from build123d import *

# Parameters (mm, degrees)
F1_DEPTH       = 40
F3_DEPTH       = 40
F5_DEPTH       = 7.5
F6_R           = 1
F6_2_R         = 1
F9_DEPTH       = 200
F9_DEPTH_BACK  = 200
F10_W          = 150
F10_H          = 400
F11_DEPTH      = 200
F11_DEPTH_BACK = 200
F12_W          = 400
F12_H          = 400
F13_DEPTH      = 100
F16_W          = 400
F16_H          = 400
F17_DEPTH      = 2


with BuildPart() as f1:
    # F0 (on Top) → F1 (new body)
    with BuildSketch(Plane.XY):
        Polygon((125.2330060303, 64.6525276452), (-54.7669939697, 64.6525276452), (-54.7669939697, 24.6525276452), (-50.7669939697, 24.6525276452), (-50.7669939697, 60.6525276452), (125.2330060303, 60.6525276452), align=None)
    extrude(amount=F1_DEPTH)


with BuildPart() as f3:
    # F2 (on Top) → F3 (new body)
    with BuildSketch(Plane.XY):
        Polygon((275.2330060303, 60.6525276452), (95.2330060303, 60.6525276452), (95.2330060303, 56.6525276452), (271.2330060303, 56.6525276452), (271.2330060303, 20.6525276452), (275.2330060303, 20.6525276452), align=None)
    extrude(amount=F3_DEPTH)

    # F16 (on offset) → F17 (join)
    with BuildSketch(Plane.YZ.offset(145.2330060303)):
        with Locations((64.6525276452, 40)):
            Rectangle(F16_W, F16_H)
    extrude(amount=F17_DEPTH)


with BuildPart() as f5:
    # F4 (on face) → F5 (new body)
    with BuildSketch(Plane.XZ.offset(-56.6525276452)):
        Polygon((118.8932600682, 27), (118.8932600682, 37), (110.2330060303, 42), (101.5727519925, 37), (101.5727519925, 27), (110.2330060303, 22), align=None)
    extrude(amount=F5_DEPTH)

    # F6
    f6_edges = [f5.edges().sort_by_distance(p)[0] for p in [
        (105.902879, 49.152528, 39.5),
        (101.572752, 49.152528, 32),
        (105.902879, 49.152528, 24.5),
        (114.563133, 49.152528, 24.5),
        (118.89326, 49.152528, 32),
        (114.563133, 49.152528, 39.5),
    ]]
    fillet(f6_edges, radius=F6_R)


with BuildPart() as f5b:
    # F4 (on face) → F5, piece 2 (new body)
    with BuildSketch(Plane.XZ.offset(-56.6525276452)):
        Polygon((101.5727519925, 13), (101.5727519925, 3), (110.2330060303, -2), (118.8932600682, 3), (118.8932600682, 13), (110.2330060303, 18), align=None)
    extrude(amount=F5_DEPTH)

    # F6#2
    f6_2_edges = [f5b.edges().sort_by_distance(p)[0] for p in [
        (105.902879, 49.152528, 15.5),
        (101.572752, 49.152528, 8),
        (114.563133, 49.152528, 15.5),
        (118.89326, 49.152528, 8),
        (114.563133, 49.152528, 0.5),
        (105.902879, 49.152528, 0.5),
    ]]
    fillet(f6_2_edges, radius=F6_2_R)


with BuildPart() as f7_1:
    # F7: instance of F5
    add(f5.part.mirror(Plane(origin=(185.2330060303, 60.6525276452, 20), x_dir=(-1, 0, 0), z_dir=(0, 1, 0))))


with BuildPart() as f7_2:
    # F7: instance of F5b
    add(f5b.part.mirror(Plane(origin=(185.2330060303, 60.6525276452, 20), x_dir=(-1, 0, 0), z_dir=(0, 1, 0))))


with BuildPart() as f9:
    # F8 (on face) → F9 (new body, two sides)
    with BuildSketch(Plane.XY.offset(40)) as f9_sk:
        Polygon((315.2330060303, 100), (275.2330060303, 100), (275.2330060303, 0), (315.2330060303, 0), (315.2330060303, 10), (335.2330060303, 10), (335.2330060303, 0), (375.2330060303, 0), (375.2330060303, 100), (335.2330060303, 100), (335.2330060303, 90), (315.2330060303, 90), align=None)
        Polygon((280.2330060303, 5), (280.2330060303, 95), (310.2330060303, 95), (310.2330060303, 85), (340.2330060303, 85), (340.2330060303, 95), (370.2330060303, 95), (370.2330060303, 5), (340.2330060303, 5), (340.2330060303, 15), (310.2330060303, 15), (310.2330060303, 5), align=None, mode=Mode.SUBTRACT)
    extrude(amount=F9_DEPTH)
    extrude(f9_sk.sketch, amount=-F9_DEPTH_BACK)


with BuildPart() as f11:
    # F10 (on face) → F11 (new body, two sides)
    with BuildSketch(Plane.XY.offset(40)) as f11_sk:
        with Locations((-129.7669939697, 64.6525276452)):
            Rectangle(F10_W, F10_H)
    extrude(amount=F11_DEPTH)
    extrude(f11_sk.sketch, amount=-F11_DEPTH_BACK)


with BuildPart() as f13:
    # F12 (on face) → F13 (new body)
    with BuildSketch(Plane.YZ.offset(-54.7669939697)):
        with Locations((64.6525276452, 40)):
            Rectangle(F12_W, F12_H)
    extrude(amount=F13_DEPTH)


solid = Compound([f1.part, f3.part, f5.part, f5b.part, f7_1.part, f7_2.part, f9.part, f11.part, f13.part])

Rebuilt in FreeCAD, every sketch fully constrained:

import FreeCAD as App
import Part
import Sketcher

V = App.Vector
Q = App.Units.Quantity


def edges_at(feature, points):
    """Names of the edges that pass closest to the given points."""
    edges = feature.Shape.Edges
    near = lambda p: min(range(len(edges)), key=lambda i: edges[i].distToShape(Part.Vertex(*p))[0])
    return sorted({f"Edge{near(p) + 1}" for p in points})

doc = App.newDocument("Part")
body = doc.addObject("PartDesign::Body", "Body")

sketch1 = body.newObject("Sketcher::SketchObject", "Sketch")
sketch1.AttachmentSupport = (doc.getObject("XY_Plane"), [""])
sketch1.MapMode = "FlatFace"
sketch1.addGeometry(Part.LineSegment(V(125.2, 64.7, 0), V(-54.8, 64.7, 0)), False)
sketch1.addGeometry(Part.LineSegment(V(-54.8, 64.7, 0), V(-54.8, 24.7, 0)), False)
sketch1.addGeometry(Part.LineSegment(V(-54.8, 24.7, 0), V(-50.8, 24.7, 0)), False)
sketch1.addGeometry(Part.LineSegment(V(-50.8, 24.7, 0), V(-50.8, 60.7, 0)), False)
sketch1.addGeometry(Part.LineSegment(V(-50.8, 60.7, 0), V(125.2, 60.7, 0)), False)
sketch1.addGeometry(Part.LineSegment(V(125.2, 60.7, 0), V(125.2, 64.7, 0)), False)
sketch1.addConstraint(Sketcher.Constraint("Coincident", 0, 2, 1, 1))
sketch1.addConstraint(Sketcher.Constraint("Coincident", 1, 2, 2, 1))
sketch1.addConstraint(Sketcher.Constraint("Coincident", 2, 2, 3, 1))
sketch1.addConstraint(Sketcher.Constraint("Coincident", 3, 2, 4, 1))
sketch1.addConstraint(Sketcher.Constraint("Coincident", 4, 2, 5, 1))
sketch1.addConstraint(Sketcher.Constraint("Coincident", 5, 2, 0, 1))
sketch1.addConstraint(Sketcher.Constraint("Horizontal", 0))
sketch1.addConstraint(Sketcher.Constraint("Vertical", 1))
sketch1.addConstraint(Sketcher.Constraint("Horizontal", 2))
sketch1.addConstraint(Sketcher.Constraint("Vertical", 3))
sketch1.addConstraint(Sketcher.Constraint("Horizontal", 4))
sketch1.addConstraint(Sketcher.Constraint("Vertical", 5))
sketch1.addConstraint(Sketcher.Constraint("Equal", 2, 5))
sketch1.addConstraint(Sketcher.Constraint("DistanceX", 0, 2, 0, 1, Q("180 mm")))
sketch1.addConstraint(Sketcher.Constraint("DistanceX", 2, 1, 2, 2, Q("4 mm")))
sketch1.addConstraint(Sketcher.Constraint("DistanceY", 1, 2, 1, 1, Q("40 mm")))
sketch1.addConstraint(Sketcher.Constraint("DistanceX", 0, 2, -1, 1, Q("54.766994 mm")))
sketch1.addConstraint(Sketcher.Constraint("DistanceY", -1, 1, 0, 2, Q("64.652528 mm")))
pad1 = body.newObject("PartDesign::Pad", "Pad")
pad1.Profile = sketch1
pad1.Length = 40
body2 = doc.addObject("PartDesign::Body", "Body001")

sketch2 = body2.newObject("Sketcher::SketchObject", "Sketch001")
sketch2.AttachmentSupport = (doc.getObject("XY_Plane001"), [""])
sketch2.MapMode = "FlatFace"
sketch2.addGeometry(Part.LineSegment(V(275.2, 60.7, 0), V(95.2, 60.7, 0)), False)
sketch2.addGeometry(Part.LineSegment(V(95.2, 60.7, 0), V(95.2, 56.7, 0)), False)
sketch2.addGeometry(Part.LineSegment(V(95.2, 56.7, 0), V(271.2, 56.7, 0)), False)
sketch2.addGeometry(Part.LineSegment(V(271.2, 56.7, 0), V(271.2, 20.7, 0)), False)
sketch2.addGeometry(Part.LineSegment(V(271.2, 20.7, 0), V(275.2, 20.7, 0)), False)
sketch2.addGeometry(Part.LineSegment(V(275.2, 20.7, 0), V(275.2, 60.7, 0)), False)
sketch2.addConstraint(Sketcher.Constraint("Coincident", 0, 2, 1, 1))
sketch2.addConstraint(Sketcher.Constraint("Coincident", 1, 2, 2, 1))
sketch2.addConstraint(Sketcher.Constraint("Coincident", 2, 2, 3, 1))
sketch2.addConstraint(Sketcher.Constraint("Coincident", 3, 2, 4, 1))
sketch2.addConstraint(Sketcher.Constraint("Coincident", 4, 2, 5, 1))
sketch2.addConstraint(Sketcher.Constraint("Coincident", 5, 2, 0, 1))
sketch2.addConstraint(Sketcher.Constraint("Horizontal", 0))
sketch2.addConstraint(Sketcher.Constraint("Vertical", 1))
sketch2.addConstraint(Sketcher.Constraint("Horizontal", 2))
sketch2.addConstraint(Sketcher.Constraint("Vertical", 3))
sketch2.addConstraint(Sketcher.Constraint("Horizontal", 4))
sketch2.addConstraint(Sketcher.Constraint("Vertical", 5))
sketch2.addConstraint(Sketcher.Constraint("Equal", 4, 1))
sketch2.addConstraint(Sketcher.Constraint("DistanceX", 0, 2, 0, 1, Q("180 mm")))
sketch2.addConstraint(Sketcher.Constraint("DistanceX", 2, 1, 2, 2, Q("176 mm")))
sketch2.addConstraint(Sketcher.Constraint("DistanceY", 3, 2, 3, 1, Q("36 mm")))
sketch2.addConstraint(Sketcher.Constraint("DistanceX", -1, 1, 0, 2, Q("95.233006 mm")))
sketch2.addConstraint(Sketcher.Constraint("DistanceY", -1, 1, 0, 2, Q("60.652528 mm")))
pad2 = body2.newObject("PartDesign::Pad", "Pad001")
pad2.Profile = sketch2
pad2.Length = 40

sketch3 = body2.newObject("Sketcher::SketchObject", "Sketch002")
sketch3.AttachmentSupport = (doc.getObject("YZ_Plane001"), [""])
sketch3.MapMode = "FlatFace"
sketch3.AttachmentOffset = App.Placement(V(0, 0, 145.233006), App.Rotation())
sketch3.addGeometry(Part.LineSegment(V(-135, 240, 0), V(-135, -160, 0)), False)
sketch3.addGeometry(Part.LineSegment(V(-135, -160, 0), V(265, -160, 0)), False)
sketch3.addGeometry(Part.LineSegment(V(265, -160, 0), V(265, 240, 0)), False)
sketch3.addGeometry(Part.LineSegment(V(265, 240, 0), V(-135, 240, 0)), False)
sketch3.addConstraint(Sketcher.Constraint("Coincident", 0, 2, 1, 1))
sketch3.addConstraint(Sketcher.Constraint("Coincident", 1, 2, 2, 1))
sketch3.addConstraint(Sketcher.Constraint("Coincident", 2, 2, 3, 1))
sketch3.addConstraint(Sketcher.Constraint("Coincident", 3, 2, 0, 1))
sketch3.addConstraint(Sketcher.Constraint("Vertical", 0))
sketch3.addConstraint(Sketcher.Constraint("Horizontal", 1))
sketch3.addConstraint(Sketcher.Constraint("Vertical", 2))
sketch3.addConstraint(Sketcher.Constraint("Horizontal", 3))
sketch3.addConstraint(Sketcher.Constraint("Equal", 3, 0))
sketch3.addConstraint(Sketcher.Constraint("DistanceX", 1, 1, 1, 2, Q("400 mm")))
sketch3.addConstraint(Sketcher.Constraint("DistanceY", 0, 2, -1, 1, Q("160 mm")))
sketch3.addConstraint(Sketcher.Constraint("DistanceX", 0, 2, -1, 1, Q("135.347472 mm")))
pad3 = body2.newObject("PartDesign::Pad", "Pad002")
pad3.Profile = sketch3
pad3.Length = 2
body3 = doc.addObject("PartDesign::Body", "Body002")

sketch4 = body3.newObject("Sketcher::SketchObject", "Sketch003")
sketch4.AttachmentSupport = (doc.getObject("XZ_Plane002"), [""])
sketch4.MapMode = "FlatFace"
sketch4.AttachmentOffset = App.Placement(V(0, 0, -56.652528), App.Rotation())
sketch4.addGeometry(Part.LineSegment(V(119, 27, 0), V(119, 37, 0)), False)
sketch4.addGeometry(Part.LineSegment(V(119, 37, 0), V(110, 42, 0)), False)
sketch4.addGeometry(Part.LineSegment(V(110, 42, 0), V(102, 37, 0)), False)
sketch4.addGeometry(Part.LineSegment(V(102, 37, 0), V(102, 27, 0)), False)
sketch4.addGeometry(Part.LineSegment(V(102, 27, 0), V(110, 22, 0)), False)
sketch4.addGeometry(Part.LineSegment(V(110, 22, 0), V(119, 27, 0)), False)
sketch4.addConstraint(Sketcher.Constraint("Coincident", 0, 2, 1, 1))
sketch4.addConstraint(Sketcher.Constraint("Coincident", 1, 2, 2, 1))
sketch4.addConstraint(Sketcher.Constraint("Coincident", 2, 2, 3, 1))
sketch4.addConstraint(Sketcher.Constraint("Coincident", 3, 2, 4, 1))
sketch4.addConstraint(Sketcher.Constraint("Coincident", 4, 2, 5, 1))
sketch4.addConstraint(Sketcher.Constraint("Coincident", 5, 2, 0, 1))
sketch4.addConstraint(Sketcher.Constraint("Vertical", 0))
sketch4.addConstraint(Sketcher.Constraint("Vertical", 3))
sketch4.addConstraint(Sketcher.Constraint("Parallel", 1, 4))
sketch4.addConstraint(Sketcher.Constraint("Parallel", 2, 5))
sketch4.addConstraint(Sketcher.Constraint("Horizontal", 0, 2, 2, 2))
sketch4.addConstraint(Sketcher.Constraint("Horizontal", 3, 2, 5, 2))
sketch4.addConstraint(Sketcher.Constraint("Vertical", 1, 2, 4, 2))
sketch4.addConstraint(Sketcher.Constraint("DistanceY", 0, 1, 0, 2, Q("10 mm")))
sketch4.addConstraint(Sketcher.Constraint("Angle", 1, Q("150 deg")))
sketch4.addConstraint(Sketcher.Constraint("Distance", 1, Q("10 mm")))
sketch4.addConstraint(Sketcher.Constraint("DistanceY", -1, 1, 0, 2, Q("37 mm")))
sketch4.addConstraint(Sketcher.Constraint("DistanceX", -1, 1, 0, 2, Q("118.89326 mm")))
pad4 = body3.newObject("PartDesign::Pad", "Pad003")
pad4.Profile = sketch4
pad4.Length = 7.5
doc.recompute()

fillet = body3.newObject("PartDesign::Fillet", "Fillet")
fillet.Base = (pad4, edges_at(pad4, [
    (105.903, 49.153, 39.5),
    (101.573, 49.153, 32),
    (105.903, 49.153, 24.5),
    (114.563, 49.153, 24.5),
    (118.893, 49.153, 32),
    (114.563, 49.153, 39.5),
]))
fillet.Radius = 1
body4 = doc.addObject("PartDesign::Body", "Body003")

sketch5 = body4.newObject("Sketcher::SketchObject", "Sketch004")
sketch5.AttachmentSupport = (doc.getObject("XZ_Plane003"), [""])
sketch5.MapMode = "FlatFace"
sketch5.AttachmentOffset = App.Placement(V(0, 0, -56.652528), App.Rotation())
sketch5.addGeometry(Part.LineSegment(V(102, 13, 0), V(102, 3, 0)), False)
sketch5.addGeometry(Part.LineSegment(V(102, 3, 0), V(110, -2, 0)), False)
sketch5.addGeometry(Part.LineSegment(V(110, -2, 0), V(119, 3, 0)), False)
sketch5.addGeometry(Part.LineSegment(V(119, 3, 0), V(119, 13, 0)), False)
sketch5.addGeometry(Part.LineSegment(V(119, 13, 0), V(110, 18, 0)), False)
sketch5.addGeometry(Part.LineSegment(V(110, 18, 0), V(102, 13, 0)), False)
sketch5.addConstraint(Sketcher.Constraint("Coincident", 0, 2, 1, 1))
sketch5.addConstraint(Sketcher.Constraint("Coincident", 1, 2, 2, 1))
sketch5.addConstraint(Sketcher.Constraint("Coincident", 2, 2, 3, 1))
sketch5.addConstraint(Sketcher.Constraint("Coincident", 3, 2, 4, 1))
sketch5.addConstraint(Sketcher.Constraint("Coincident", 4, 2, 5, 1))
sketch5.addConstraint(Sketcher.Constraint("Coincident", 5, 2, 0, 1))
sketch5.addConstraint(Sketcher.Constraint("Vertical", 0))
sketch5.addConstraint(Sketcher.Constraint("Vertical", 3))
sketch5.addConstraint(Sketcher.Constraint("Parallel", 1, 4))
sketch5.addConstraint(Sketcher.Constraint("Parallel", 2, 5))
sketch5.addConstraint(Sketcher.Constraint("Horizontal", 0, 2, 2, 2))
sketch5.addConstraint(Sketcher.Constraint("Horizontal", 3, 2, 5, 2))
sketch5.addConstraint(Sketcher.Constraint("Vertical", 1, 2, 4, 2))
sketch5.addConstraint(Sketcher.Constraint("DistanceY", 0, 2, 0, 1, Q("10 mm")))
sketch5.addConstraint(Sketcher.Constraint("Angle", 1, Q("-30 deg")))
sketch5.addConstraint(Sketcher.Constraint("Distance", 1, Q("10 mm")))
sketch5.addConstraint(Sketcher.Constraint("DistanceY", -1, 1, 0, 2, Q("3 mm")))
sketch5.addConstraint(Sketcher.Constraint("DistanceX", -1, 1, 0, 2, Q("101.572752 mm")))
pad5 = body4.newObject("PartDesign::Pad", "Pad004")
pad5.Profile = sketch5
pad5.Length = 7.5
doc.recompute()

fillet2 = body4.newObject("PartDesign::Fillet", "Fillet001")
fillet2.Base = (pad5, edges_at(pad5, [
    (105.903, 49.153, 15.5),
    (101.573, 49.153, 8),
    (114.563, 49.153, 15.5),
    (118.893, 49.153, 8),
    (114.563, 49.153, 0.5),
    (105.903, 49.153, 0.5),
]))
fillet2.Radius = 1
body5 = doc.addObject("PartDesign::Body", "Body004")
doc.recompute()

mirroring = doc.addObject("Part::Mirroring", "Mirroring")
mirroring.Source = body3
mirroring.Base = V(185.233006, 60.652528, 20)
mirroring.Normal = V(0, 1, 0)
body5.BaseFeature = mirroring
doc.recompute()
body6 = doc.addObject("PartDesign::Body", "Body005")
doc.recompute()

mirroring2 = doc.addObject("Part::Mirroring", "Mirroring001")
mirroring2.Source = body4
mirroring2.Base = V(185.233006, 60.652528, 20)
mirroring2.Normal = V(0, 1, 0)
body6.BaseFeature = mirroring2
doc.recompute()
body7 = doc.addObject("PartDesign::Body", "Body006")

sketch6 = body7.newObject("Sketcher::SketchObject", "Sketch005")
sketch6.AttachmentSupport = (doc.getObject("XY_Plane006"), [""])
sketch6.MapMode = "FlatFace"
sketch6.AttachmentOffset = App.Placement(V(0, 0, 40), App.Rotation())
sketch6.addGeometry(Part.LineSegment(V(315, 100, 0), V(275, 100, 0)), False)
sketch6.addGeometry(Part.LineSegment(V(275, 100, 0), V(275, 0, 0)), False)
sketch6.addGeometry(Part.LineSegment(V(275, 0, 0), V(315, 0, 0)), False)
sketch6.addGeometry(Part.LineSegment(V(315, 0, 0), V(315, 10, 0)), False)
sketch6.addGeometry(Part.LineSegment(V(315, 10, 0), V(335, 10, 0)), False)
sketch6.addGeometry(Part.LineSegment(V(335, 10, 0), V(335, 0, 0)), False)
sketch6.addGeometry(Part.LineSegment(V(335, 0, 0), V(375, 0, 0)), False)
sketch6.addGeometry(Part.LineSegment(V(375, 0, 0), V(375, 100, 0)), False)
sketch6.addGeometry(Part.LineSegment(V(375, 100, 0), V(335, 100, 0)), False)
sketch6.addGeometry(Part.LineSegment(V(335, 100, 0), V(335, 90, 0)), False)
sketch6.addGeometry(Part.LineSegment(V(335, 90, 0), V(315, 90, 0)), False)
sketch6.addGeometry(Part.LineSegment(V(315, 90, 0), V(315, 100, 0)), False)
sketch6.addGeometry(Part.LineSegment(V(310, 5, 0), V(280, 5, 0)), False)
sketch6.addGeometry(Part.LineSegment(V(280, 5, 0), V(280, 95, 0)), False)
sketch6.addGeometry(Part.LineSegment(V(280, 95, 0), V(310, 95, 0)), False)
sketch6.addGeometry(Part.LineSegment(V(310, 95, 0), V(310, 85, 0)), False)
sketch6.addGeometry(Part.LineSegment(V(310, 85, 0), V(340, 85, 0)), False)
sketch6.addGeometry(Part.LineSegment(V(340, 85, 0), V(340, 95, 0)), False)
sketch6.addGeometry(Part.LineSegment(V(340, 95, 0), V(370, 95, 0)), False)
sketch6.addGeometry(Part.LineSegment(V(370, 95, 0), V(370, 5, 0)), False)
sketch6.addGeometry(Part.LineSegment(V(370, 5, 0), V(340, 5, 0)), False)
sketch6.addGeometry(Part.LineSegment(V(340, 5, 0), V(340, 15, 0)), False)
sketch6.addGeometry(Part.LineSegment(V(340, 15, 0), V(310, 15, 0)), False)
sketch6.addGeometry(Part.LineSegment(V(310, 15, 0), V(310, 5, 0)), False)
sketch6.addConstraint(Sketcher.Constraint("Coincident", 0, 2, 1, 1))
sketch6.addConstraint(Sketcher.Constraint("Coincident", 1, 2, 2, 1))
sketch6.addConstraint(Sketcher.Constraint("Coincident", 2, 2, 3, 1))
sketch6.addConstraint(Sketcher.Constraint("Coincident", 3, 2, 4, 1))
sketch6.addConstraint(Sketcher.Constraint("Coincident", 4, 2, 5, 1))
sketch6.addConstraint(Sketcher.Constraint("Coincident", 5, 2, 6, 1))
sketch6.addConstraint(Sketcher.Constraint("Coincident", 6, 2, 7, 1))
sketch6.addConstraint(Sketcher.Constraint("Coincident", 7, 2, 8, 1))
sketch6.addConstraint(Sketcher.Constraint("Coincident", 8, 2, 9, 1))
sketch6.addConstraint(Sketcher.Constraint("Coincident", 9, 2, 10, 1))
sketch6.addConstraint(Sketcher.Constraint("Coincident", 10, 2, 11, 1))
sketch6.addConstraint(Sketcher.Constraint("Coincident", 11, 2, 0, 1))
sketch6.addConstraint(Sketcher.Constraint("Coincident", 12, 2, 13, 1))
sketch6.addConstraint(Sketcher.Constraint("Coincident", 13, 2, 14, 1))
sketch6.addConstraint(Sketcher.Constraint("Coincident", 14, 2, 15, 1))
sketch6.addConstraint(Sketcher.Constraint("Coincident", 15, 2, 16, 1))
sketch6.addConstraint(Sketcher.Constraint("Coincident", 16, 2, 17, 1))
sketch6.addConstraint(Sketcher.Constraint("Coincident", 17, 2, 18, 1))
sketch6.addConstraint(Sketcher.Constraint("Coincident", 18, 2, 19, 1))
sketch6.addConstraint(Sketcher.Constraint("Coincident", 19, 2, 20, 1))
sketch6.addConstraint(Sketcher.Constraint("Coincident", 20, 2, 21, 1))
sketch6.addConstraint(Sketcher.Constraint("Coincident", 21, 2, 22, 1))
sketch6.addConstraint(Sketcher.Constraint("Coincident", 22, 2, 23, 1))
sketch6.addConstraint(Sketcher.Constraint("Coincident", 23, 2, 12, 1))
sketch6.addConstraint(Sketcher.Constraint("Horizontal", 0))
sketch6.addConstraint(Sketcher.Constraint("Vertical", 1))
sketch6.addConstraint(Sketcher.Constraint("Horizontal", 2))
sketch6.addConstraint(Sketcher.Constraint("Vertical", 3))
sketch6.addConstraint(Sketcher.Constraint("Horizontal", 4))
sketch6.addConstraint(Sketcher.Constraint("Vertical", 5))
sketch6.addConstraint(Sketcher.Constraint("Horizontal", 6))
sketch6.addConstraint(Sketcher.Constraint("Vertical", 7))
sketch6.addConstraint(Sketcher.Constraint("Horizontal", 8))
sketch6.addConstraint(Sketcher.Constraint("Vertical", 9))
sketch6.addConstraint(Sketcher.Constraint("Horizontal", 10))
sketch6.addConstraint(Sketcher.Constraint("Vertical", 11))
sketch6.addConstraint(Sketcher.Constraint("Horizontal", 12))
sketch6.addConstraint(Sketcher.Constraint("Vertical", 13))
sketch6.addConstraint(Sketcher.Constraint("Horizontal", 14))
sketch6.addConstraint(Sketcher.Constraint("Vertical", 15))
sketch6.addConstraint(Sketcher.Constraint("Horizontal", 16))
sketch6.addConstraint(Sketcher.Constraint("Vertical", 17))
sketch6.addConstraint(Sketcher.Constraint("Horizontal", 18))
sketch6.addConstraint(Sketcher.Constraint("Vertical", 19))
sketch6.addConstraint(Sketcher.Constraint("Horizontal", 20))
sketch6.addConstraint(Sketcher.Constraint("Vertical", 21))
sketch6.addConstraint(Sketcher.Constraint("Horizontal", 22))
sketch6.addConstraint(Sketcher.Constraint("Vertical", 23))
sketch6.addConstraint(Sketcher.Constraint("PointOnObject", 1, 2, -1))
sketch6.addConstraint(Sketcher.Constraint("PointOnObject", 5, 2, -1))
sketch6.addConstraint(Sketcher.Constraint("Horizontal", 0, 2, 7, 2))
sketch6.addConstraint(Sketcher.Constraint("Horizontal", 14, 2, 17, 2))
sketch6.addConstraint(Sketcher.Constraint("Horizontal", 12, 2, 19, 2))
sketch6.addConstraint(Sketcher.Constraint("Vertical", 5, 2, 8, 2))
sketch6.addConstraint(Sketcher.Constraint("Vertical", 3, 2, 10, 2))
sketch6.addConstraint(Sketcher.Constraint("Vertical", 17, 2, 20, 2))
sketch6.addConstraint(Sketcher.Constraint("Vertical", 15, 2, 22, 2))
sketch6.addConstraint(Sketcher.Constraint("Equal", 2, 6))
sketch6.addConstraint(Sketcher.Constraint("Equal", 14, 16))
sketch6.addConstraint(Sketcher.Constraint("Equal", 16, 18))
sketch6.addConstraint(Sketcher.Constraint("Equal", 5, 9))
sketch6.addConstraint(Sketcher.Constraint("Equal", 11, 15))
sketch6.addConstraint(Sketcher.Constraint("Equal", 17, 21))
sketch6.addConstraint(Sketcher.Constraint("DistanceX", 0, 2, 0, 1, Q("40 mm")))
sketch6.addConstraint(Sketcher.Constraint("DistanceX", 4, 1, 4, 2, Q("20 mm")))
sketch6.addConstraint(Sketcher.Constraint("DistanceX", 12, 2, 12, 1, Q("30 mm")))
sketch6.addConstraint(Sketcher.Constraint("DistanceY", 1, 2, 1, 1, Q("100 mm")))
sketch6.addConstraint(Sketcher.Constraint("DistanceY", 3, 1, 3, 2, Q("10 mm")))
sketch6.addConstraint(Sketcher.Constraint("DistanceY", 13, 1, 13, 2, Q("90 mm")))
sketch6.addConstraint(Sketcher.Constraint("DistanceY", -1, 1, 12, 2, Q("5 mm")))
sketch6.addConstraint(Sketcher.Constraint("DistanceX", 1, 2, 12, 2, Q("5 mm")))
sketch6.addConstraint(Sketcher.Constraint("DistanceX", -1, 1, 0, 2, Q("275.233006 mm")))
pad6 = body7.newObject("PartDesign::Pad", "Pad005")
pad6.Profile = sketch6
pad6.Type = "TwoLengths"
pad6.Length = 200
pad6.Length2 = 200
body8 = doc.addObject("PartDesign::Body", "Body007")

sketch7 = body8.newObject("Sketcher::SketchObject", "Sketch006")
sketch7.AttachmentSupport = (doc.getObject("XY_Plane007"), [""])
sketch7.MapMode = "FlatFace"
sketch7.AttachmentOffset = App.Placement(V(0, 0, 40), App.Rotation())
sketch7.addGeometry(Part.LineSegment(V(-205, 265, 0), V(-205, -135, 0)), False)
sketch7.addGeometry(Part.LineSegment(V(-205, -135, 0), V(-55, -135, 0)), False)
sketch7.addGeometry(Part.LineSegment(V(-55, -135, 0), V(-55, 265, 0)), False)
sketch7.addGeometry(Part.LineSegment(V(-55, 265, 0), V(-205, 265, 0)), False)
sketch7.addConstraint(Sketcher.Constraint("Coincident", 0, 2, 1, 1))
sketch7.addConstraint(Sketcher.Constraint("Coincident", 1, 2, 2, 1))
sketch7.addConstraint(Sketcher.Constraint("Coincident", 2, 2, 3, 1))
sketch7.addConstraint(Sketcher.Constraint("Coincident", 3, 2, 0, 1))
sketch7.addConstraint(Sketcher.Constraint("Vertical", 0))
sketch7.addConstraint(Sketcher.Constraint("Horizontal", 1))
sketch7.addConstraint(Sketcher.Constraint("Vertical", 2))
sketch7.addConstraint(Sketcher.Constraint("Horizontal", 3))
sketch7.addConstraint(Sketcher.Constraint("DistanceX", 1, 1, 1, 2, Q("150 mm")))
sketch7.addConstraint(Sketcher.Constraint("DistanceY", 0, 2, 0, 1, Q("400 mm")))
sketch7.addConstraint(Sketcher.Constraint("DistanceX", 0, 2, -1, 1, Q("204.766994 mm")))
sketch7.addConstraint(Sketcher.Constraint("DistanceY", 0, 2, -1, 1, Q("135.347472 mm")))
pad7 = body8.newObject("PartDesign::Pad", "Pad006")
pad7.Profile = sketch7
pad7.Type = "TwoLengths"
pad7.Length = 200
pad7.Length2 = 200
body9 = doc.addObject("PartDesign::Body", "Body008")

sketch8 = body9.newObject("Sketcher::SketchObject", "Sketch007")
sketch8.AttachmentSupport = (doc.getObject("YZ_Plane008"), [""])
sketch8.MapMode = "FlatFace"
sketch8.AttachmentOffset = App.Placement(V(0, 0, -54.766994), App.Rotation())
sketch8.addGeometry(Part.LineSegment(V(-135, 240, 0), V(-135, -160, 0)), False)
sketch8.addGeometry(Part.LineSegment(V(-135, -160, 0), V(265, -160, 0)), False)
sketch8.addGeometry(Part.LineSegment(V(265, -160, 0), V(265, 240, 0)), False)
sketch8.addGeometry(Part.LineSegment(V(265, 240, 0), V(-135, 240, 0)), False)
sketch8.addConstraint(Sketcher.Constraint("Coincident", 0, 2, 1, 1))
sketch8.addConstraint(Sketcher.Constraint("Coincident", 1, 2, 2, 1))
sketch8.addConstraint(Sketcher.Constraint("Coincident", 2, 2, 3, 1))
sketch8.addConstraint(Sketcher.Constraint("Coincident", 3, 2, 0, 1))
sketch8.addConstraint(Sketcher.Constraint("Vertical", 0))
sketch8.addConstraint(Sketcher.Constraint("Horizontal", 1))
sketch8.addConstraint(Sketcher.Constraint("Vertical", 2))
sketch8.addConstraint(Sketcher.Constraint("Horizontal", 3))
sketch8.addConstraint(Sketcher.Constraint("Equal", 3, 0))
sketch8.addConstraint(Sketcher.Constraint("DistanceX", 1, 1, 1, 2, Q("400 mm")))
sketch8.addConstraint(Sketcher.Constraint("DistanceY", 0, 2, -1, 1, Q("160 mm")))
sketch8.addConstraint(Sketcher.Constraint("DistanceX", 0, 2, -1, 1, Q("135.347472 mm")))
pad8 = body9.newObject("PartDesign::Pad", "Pad007")
pad8.Profile = sketch8
pad8.Length = 100
mirroring.Visibility = False
mirroring2.Visibility = False

doc.recompute()
